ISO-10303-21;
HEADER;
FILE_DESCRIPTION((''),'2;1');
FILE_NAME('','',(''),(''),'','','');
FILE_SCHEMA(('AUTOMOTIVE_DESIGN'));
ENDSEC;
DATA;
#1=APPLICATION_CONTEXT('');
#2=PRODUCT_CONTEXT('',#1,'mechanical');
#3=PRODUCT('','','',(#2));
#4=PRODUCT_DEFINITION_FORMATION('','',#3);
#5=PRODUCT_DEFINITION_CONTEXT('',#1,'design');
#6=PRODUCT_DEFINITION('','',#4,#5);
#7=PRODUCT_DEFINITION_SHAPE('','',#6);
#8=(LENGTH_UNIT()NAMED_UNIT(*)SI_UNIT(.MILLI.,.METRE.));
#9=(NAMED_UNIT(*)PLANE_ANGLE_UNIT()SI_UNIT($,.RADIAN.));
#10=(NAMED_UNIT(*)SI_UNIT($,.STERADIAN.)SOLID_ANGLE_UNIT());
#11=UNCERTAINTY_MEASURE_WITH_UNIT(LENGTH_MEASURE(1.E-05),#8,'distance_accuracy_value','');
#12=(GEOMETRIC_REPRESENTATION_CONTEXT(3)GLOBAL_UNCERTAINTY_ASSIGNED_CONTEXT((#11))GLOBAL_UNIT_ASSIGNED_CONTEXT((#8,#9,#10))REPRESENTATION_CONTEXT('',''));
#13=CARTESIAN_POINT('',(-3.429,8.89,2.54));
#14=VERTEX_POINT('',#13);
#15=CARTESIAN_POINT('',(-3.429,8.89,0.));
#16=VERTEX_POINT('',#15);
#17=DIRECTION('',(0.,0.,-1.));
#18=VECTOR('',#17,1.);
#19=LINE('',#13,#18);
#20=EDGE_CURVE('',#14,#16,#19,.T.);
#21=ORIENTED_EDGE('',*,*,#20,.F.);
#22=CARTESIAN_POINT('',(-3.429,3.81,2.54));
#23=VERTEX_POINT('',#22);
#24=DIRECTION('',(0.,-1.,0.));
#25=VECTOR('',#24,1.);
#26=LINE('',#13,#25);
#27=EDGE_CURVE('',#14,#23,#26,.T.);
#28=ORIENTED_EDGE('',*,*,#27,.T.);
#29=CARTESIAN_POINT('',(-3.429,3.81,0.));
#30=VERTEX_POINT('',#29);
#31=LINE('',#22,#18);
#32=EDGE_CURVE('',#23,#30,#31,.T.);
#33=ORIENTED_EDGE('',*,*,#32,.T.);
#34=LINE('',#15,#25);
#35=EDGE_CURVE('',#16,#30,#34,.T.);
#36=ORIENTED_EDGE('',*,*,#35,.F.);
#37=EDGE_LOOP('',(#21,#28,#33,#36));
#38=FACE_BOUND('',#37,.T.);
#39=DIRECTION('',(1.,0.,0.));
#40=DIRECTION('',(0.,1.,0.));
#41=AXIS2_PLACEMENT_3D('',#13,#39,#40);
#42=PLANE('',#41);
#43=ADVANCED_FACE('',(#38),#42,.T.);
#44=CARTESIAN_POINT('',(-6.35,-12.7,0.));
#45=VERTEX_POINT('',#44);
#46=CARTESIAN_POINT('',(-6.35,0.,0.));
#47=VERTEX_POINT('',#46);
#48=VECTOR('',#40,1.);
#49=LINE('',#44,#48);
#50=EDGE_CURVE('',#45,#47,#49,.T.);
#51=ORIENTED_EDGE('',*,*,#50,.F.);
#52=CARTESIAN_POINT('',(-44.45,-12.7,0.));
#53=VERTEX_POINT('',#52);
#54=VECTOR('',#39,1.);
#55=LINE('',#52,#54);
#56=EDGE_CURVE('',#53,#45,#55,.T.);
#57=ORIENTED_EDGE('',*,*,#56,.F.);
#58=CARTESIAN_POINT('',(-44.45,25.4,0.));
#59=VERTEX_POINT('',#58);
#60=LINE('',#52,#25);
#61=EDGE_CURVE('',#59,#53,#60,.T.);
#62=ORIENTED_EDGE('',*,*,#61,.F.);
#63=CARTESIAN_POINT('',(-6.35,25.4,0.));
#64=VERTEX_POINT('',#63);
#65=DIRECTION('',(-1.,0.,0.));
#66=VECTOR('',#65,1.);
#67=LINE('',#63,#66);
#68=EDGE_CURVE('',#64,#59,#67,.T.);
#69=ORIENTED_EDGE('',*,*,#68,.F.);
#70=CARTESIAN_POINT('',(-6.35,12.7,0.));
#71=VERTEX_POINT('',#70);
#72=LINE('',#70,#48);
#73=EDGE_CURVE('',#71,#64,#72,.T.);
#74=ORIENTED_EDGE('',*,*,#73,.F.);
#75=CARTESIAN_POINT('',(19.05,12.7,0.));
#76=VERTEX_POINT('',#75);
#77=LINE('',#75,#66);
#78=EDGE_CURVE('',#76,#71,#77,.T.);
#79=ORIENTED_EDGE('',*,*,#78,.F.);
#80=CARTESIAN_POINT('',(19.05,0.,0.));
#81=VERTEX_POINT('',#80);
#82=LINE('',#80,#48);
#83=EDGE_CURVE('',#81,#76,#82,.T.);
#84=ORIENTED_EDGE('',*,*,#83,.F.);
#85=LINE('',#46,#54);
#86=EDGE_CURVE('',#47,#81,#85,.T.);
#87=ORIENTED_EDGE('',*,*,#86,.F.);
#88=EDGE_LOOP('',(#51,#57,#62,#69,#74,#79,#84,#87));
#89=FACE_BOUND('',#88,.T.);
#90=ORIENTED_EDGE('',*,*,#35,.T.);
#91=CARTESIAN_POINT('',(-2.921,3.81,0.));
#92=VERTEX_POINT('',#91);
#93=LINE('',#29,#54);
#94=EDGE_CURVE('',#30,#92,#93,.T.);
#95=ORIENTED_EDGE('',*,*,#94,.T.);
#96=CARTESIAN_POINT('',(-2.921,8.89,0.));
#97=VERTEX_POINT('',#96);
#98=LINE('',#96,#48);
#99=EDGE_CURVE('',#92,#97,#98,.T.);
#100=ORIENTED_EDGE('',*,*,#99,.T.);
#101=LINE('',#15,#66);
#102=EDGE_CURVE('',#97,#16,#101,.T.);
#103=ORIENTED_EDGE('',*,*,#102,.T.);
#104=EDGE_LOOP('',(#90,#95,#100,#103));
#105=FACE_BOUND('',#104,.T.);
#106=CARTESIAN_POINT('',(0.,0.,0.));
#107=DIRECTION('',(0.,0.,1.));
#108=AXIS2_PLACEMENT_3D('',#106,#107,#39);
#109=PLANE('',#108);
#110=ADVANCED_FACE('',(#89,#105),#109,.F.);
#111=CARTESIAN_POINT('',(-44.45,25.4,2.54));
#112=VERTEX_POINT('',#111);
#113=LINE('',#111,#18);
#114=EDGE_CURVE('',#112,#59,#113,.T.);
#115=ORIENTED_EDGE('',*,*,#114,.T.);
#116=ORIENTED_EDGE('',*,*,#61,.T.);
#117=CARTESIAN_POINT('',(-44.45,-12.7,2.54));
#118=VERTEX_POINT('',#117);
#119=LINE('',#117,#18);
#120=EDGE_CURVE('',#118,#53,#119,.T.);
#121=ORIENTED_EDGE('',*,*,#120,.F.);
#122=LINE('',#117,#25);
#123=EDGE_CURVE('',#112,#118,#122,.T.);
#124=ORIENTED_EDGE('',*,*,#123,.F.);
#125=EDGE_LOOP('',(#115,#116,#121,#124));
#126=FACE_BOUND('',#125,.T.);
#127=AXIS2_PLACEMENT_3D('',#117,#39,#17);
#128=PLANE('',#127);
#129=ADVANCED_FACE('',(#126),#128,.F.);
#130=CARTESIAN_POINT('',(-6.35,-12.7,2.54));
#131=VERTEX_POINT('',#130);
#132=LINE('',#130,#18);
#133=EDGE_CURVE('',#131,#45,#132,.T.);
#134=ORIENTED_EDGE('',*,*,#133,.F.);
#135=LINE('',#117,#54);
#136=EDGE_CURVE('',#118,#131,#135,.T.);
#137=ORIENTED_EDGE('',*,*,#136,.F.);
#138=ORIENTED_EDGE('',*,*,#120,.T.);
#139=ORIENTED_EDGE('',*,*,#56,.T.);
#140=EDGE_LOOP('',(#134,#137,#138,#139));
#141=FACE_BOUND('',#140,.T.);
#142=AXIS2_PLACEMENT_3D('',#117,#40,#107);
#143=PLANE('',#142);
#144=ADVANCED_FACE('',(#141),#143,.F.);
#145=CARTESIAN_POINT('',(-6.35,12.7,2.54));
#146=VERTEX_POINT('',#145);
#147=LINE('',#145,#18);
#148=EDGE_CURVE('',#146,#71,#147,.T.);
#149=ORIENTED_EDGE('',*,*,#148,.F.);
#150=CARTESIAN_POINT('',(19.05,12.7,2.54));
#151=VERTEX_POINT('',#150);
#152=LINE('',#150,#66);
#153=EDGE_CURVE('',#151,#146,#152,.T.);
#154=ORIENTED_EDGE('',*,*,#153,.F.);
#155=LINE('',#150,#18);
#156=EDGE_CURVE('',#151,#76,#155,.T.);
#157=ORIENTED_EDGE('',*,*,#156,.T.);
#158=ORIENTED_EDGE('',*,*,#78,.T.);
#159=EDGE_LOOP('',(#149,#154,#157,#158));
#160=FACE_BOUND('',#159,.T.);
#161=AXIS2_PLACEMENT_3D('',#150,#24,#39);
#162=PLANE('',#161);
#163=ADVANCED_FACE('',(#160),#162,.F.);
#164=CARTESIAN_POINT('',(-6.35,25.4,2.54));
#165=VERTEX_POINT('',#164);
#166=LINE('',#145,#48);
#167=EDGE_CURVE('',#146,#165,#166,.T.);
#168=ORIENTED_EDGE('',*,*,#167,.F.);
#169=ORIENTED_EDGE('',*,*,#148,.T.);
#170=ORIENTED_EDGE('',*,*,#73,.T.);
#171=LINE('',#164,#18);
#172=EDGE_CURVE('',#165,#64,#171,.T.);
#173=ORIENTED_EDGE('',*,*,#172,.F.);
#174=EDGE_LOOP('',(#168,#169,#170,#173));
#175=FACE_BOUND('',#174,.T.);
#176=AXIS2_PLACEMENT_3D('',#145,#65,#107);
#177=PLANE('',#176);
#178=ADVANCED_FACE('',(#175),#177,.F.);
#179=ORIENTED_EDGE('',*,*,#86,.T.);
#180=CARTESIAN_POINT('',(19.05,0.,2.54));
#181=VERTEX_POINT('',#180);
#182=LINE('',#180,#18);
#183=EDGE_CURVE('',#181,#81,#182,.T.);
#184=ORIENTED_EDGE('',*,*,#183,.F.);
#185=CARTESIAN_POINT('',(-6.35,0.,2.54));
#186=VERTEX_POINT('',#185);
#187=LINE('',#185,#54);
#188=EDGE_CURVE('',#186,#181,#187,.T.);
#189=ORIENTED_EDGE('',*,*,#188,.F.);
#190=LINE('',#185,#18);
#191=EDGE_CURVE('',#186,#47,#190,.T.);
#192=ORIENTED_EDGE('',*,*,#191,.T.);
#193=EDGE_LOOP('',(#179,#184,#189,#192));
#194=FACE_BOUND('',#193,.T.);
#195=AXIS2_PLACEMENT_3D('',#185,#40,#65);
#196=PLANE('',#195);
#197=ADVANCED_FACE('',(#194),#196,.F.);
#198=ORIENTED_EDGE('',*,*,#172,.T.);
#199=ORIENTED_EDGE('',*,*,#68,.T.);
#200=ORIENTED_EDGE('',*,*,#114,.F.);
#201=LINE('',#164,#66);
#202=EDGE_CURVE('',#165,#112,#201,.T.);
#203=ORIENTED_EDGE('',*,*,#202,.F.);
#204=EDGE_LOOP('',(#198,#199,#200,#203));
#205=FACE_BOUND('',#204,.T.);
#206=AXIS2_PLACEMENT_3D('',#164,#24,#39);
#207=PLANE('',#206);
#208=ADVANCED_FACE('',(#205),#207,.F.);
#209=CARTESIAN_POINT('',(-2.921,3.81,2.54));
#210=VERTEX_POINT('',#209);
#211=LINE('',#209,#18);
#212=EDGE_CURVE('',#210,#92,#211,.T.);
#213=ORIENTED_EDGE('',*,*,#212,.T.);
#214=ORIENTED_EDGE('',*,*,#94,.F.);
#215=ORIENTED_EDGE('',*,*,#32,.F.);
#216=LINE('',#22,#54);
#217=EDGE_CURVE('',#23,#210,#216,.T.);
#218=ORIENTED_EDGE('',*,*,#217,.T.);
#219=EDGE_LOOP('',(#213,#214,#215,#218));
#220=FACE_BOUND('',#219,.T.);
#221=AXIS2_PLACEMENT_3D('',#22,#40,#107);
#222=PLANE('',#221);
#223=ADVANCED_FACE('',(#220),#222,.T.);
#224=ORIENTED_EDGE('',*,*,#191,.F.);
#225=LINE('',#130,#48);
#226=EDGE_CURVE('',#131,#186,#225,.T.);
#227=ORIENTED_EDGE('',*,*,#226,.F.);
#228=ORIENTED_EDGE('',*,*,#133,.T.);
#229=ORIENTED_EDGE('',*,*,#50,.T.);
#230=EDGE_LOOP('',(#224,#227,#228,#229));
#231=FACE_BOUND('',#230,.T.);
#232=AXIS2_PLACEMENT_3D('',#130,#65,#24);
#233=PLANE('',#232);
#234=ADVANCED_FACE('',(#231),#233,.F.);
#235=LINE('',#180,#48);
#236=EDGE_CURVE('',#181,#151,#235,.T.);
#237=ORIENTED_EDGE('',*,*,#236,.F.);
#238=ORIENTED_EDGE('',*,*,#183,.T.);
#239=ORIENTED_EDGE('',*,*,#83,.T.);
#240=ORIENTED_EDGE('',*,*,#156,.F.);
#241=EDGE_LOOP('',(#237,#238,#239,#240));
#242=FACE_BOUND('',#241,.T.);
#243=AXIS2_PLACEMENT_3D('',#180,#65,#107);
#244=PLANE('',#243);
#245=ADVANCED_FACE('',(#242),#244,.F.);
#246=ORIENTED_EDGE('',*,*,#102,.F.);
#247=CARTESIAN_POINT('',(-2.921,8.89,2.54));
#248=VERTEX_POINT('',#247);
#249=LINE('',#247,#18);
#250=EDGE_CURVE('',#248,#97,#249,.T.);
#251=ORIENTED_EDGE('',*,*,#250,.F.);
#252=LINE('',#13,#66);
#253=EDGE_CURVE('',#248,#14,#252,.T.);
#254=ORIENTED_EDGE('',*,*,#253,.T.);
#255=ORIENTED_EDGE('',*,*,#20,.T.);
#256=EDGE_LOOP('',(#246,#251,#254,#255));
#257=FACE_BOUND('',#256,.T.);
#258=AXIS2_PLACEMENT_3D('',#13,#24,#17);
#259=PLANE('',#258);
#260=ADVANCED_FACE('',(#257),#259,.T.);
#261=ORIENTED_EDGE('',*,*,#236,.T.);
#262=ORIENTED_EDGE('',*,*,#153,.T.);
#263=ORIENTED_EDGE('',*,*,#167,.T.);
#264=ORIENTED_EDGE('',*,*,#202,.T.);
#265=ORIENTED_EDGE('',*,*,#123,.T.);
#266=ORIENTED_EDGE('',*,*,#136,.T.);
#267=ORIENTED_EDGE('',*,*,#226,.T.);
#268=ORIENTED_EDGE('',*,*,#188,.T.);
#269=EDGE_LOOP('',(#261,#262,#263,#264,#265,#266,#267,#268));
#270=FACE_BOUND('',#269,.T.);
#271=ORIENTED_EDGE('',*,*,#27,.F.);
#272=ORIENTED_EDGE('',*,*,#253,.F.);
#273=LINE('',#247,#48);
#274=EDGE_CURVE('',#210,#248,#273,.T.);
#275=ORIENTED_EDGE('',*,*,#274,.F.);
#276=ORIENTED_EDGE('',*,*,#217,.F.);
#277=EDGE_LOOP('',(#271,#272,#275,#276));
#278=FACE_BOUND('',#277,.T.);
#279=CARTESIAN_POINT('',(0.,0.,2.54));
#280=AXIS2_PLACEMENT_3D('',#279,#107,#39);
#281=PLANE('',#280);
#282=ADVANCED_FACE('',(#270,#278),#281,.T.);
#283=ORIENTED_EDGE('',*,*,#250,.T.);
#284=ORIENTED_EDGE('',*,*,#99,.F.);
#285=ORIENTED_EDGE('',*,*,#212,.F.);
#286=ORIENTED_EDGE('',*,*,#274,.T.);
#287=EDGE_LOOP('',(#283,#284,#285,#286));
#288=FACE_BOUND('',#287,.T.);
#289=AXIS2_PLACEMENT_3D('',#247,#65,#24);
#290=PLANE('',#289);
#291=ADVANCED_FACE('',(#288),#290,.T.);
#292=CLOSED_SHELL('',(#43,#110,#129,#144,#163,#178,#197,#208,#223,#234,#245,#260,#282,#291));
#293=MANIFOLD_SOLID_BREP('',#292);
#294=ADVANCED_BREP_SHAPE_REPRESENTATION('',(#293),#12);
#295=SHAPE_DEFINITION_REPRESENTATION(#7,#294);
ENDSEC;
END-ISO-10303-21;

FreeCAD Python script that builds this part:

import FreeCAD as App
import Part
import Sketcher

V = App.Vector
Q = App.Units.Quantity

doc = App.newDocument("Part")
body = doc.addObject("PartDesign::Body", "Body")

# Sketch on XY plane
sketch1 = body.newObject("Sketcher::SketchObject", "Sketch")
sketch1.AttachmentSupport = (doc.getObject("XY_Plane"), [""])
sketch1.MapMode = "FlatFace"
sketch1.addGeometry(Part.LineSegment(V(-6.3, 12.7, 0), V(-6.3, 25.4, 0)), False)
sketch1.addGeometry(Part.LineSegment(V(-6.3, 25.4, 0), V(-44.5, 25.4, 0)), False)
sketch1.addGeometry(Part.LineSegment(V(-44.5, 25.4, 0), V(-44.5, -12.7, 0)), False)
sketch1.addGeometry(Part.LineSegment(V(-44.5, -12.7, 0), V(-6.3, -12.7, 0)), False)
sketch1.addGeometry(Part.LineSegment(V(-6.3, -12.7, 0), V(-6.3, 0, 0)), False)
sketch1.addGeometry(Part.LineSegment(V(-6.3, 0, 0), V(19.1, 0, 0)), False)
sketch1.addGeometry(Part.LineSegment(V(19.1, 0, 0), V(19.1, 12.7, 0)), False)
sketch1.addGeometry(Part.LineSegment(V(19.1, 12.7, 0), V(-6.3, 12.7, 0)), False)
sketch1.addGeometry(Part.LineSegment(V(-2.9, 3.8, 0), V(-3.4, 3.8, 0)), False)
sketch1.addGeometry(Part.LineSegment(V(-3.4, 3.8, 0), V(-3.4, 8.9, 0)), False)
sketch1.addGeometry(Part.LineSegment(V(-3.4, 8.9, 0), V(-2.9, 8.9, 0)), False)
sketch1.addGeometry(Part.LineSegment(V(-2.9, 8.9, 0), V(-2.9, 3.8, 0)), False)
sketch1.addConstraint(Sketcher.Constraint("Coincident", 0, 2, 1, 1))
sketch1.addConstraint(Sketcher.Constraint("Coincident", 1, 2, 2, 1))
sketch1.addConstraint(Sketcher.Constraint("Coincident", 2, 2, 3, 1))
sketch1.addConstraint(Sketcher.Constraint("Coincident", 3, 2, 4, 1))
sketch1.addConstraint(Sketcher.Constraint("Coincident", 4, 2, 5, 1))
sketch1.addConstraint(Sketcher.Constraint("Coincident", 5, 2, 6, 1))
sketch1.addConstraint(Sketcher.Constraint("Coincident", 6, 2, 7, 1))
sketch1.addConstraint(Sketcher.Constraint("Coincident", 7, 2, 0, 1))
sketch1.addConstraint(Sketcher.Constraint("Coincident", 8, 2, 9, 1))
sketch1.addConstraint(Sketcher.Constraint("Coincident", 9, 2, 10, 1))
sketch1.addConstraint(Sketcher.Constraint("Coincident", 10, 2, 11, 1))
sketch1.addConstraint(Sketcher.Constraint("Coincident", 11, 2, 8, 1))
sketch1.addConstraint(Sketcher.Constraint("Vertical", 0))
sketch1.addConstraint(Sketcher.Constraint("Horizontal", 1))
sketch1.addConstraint(Sketcher.Constraint("Vertical", 2))
sketch1.addConstraint(Sketcher.Constraint("Horizontal", 3))
sketch1.addConstraint(Sketcher.Constraint("Vertical", 4))
sketch1.addConstraint(Sketcher.Constraint("Horizontal", 5))
sketch1.addConstraint(Sketcher.Constraint("Vertical", 6))
sketch1.addConstraint(Sketcher.Constraint("Horizontal", 7))
sketch1.addConstraint(Sketcher.Constraint("Horizontal", 8))
sketch1.addConstraint(Sketcher.Constraint("Vertical", 9))
sketch1.addConstraint(Sketcher.Constraint("Horizontal", 10))
sketch1.addConstraint(Sketcher.Constraint("Vertical", 11))
sketch1.addConstraint(Sketcher.Constraint("Symmetric", 3, 2, 7, 2, -1))
sketch1.addConstraint(Sketcher.Constraint("PointOnObject", 4, 2, -1))
sketch1.addConstraint(Sketcher.Constraint("Equal", 3, 2))
sketch1.addConstraint(Sketcher.Constraint("Equal", 0, 4))
sketch1.addConstraint(Sketcher.Constraint("DistanceX", 5, 1, 5, 2, Q("1 in")))
sketch1.addConstraint(Sketcher.Constraint("DistanceX", 1, 2, 1, 1, Q("1.5 in")))
sketch1.addConstraint(Sketcher.Constraint("DistanceY", 9, 1, 9, 2, Q("0.2 in")))
sketch1.addConstraint(Sketcher.Constraint("DistanceX", 8, 2, 8, 1, Q("0.02 in")))
sketch1.addConstraint(Sketcher.Constraint("DistanceX", 0, 2, -1, 1, Q("0.25 in")))
sketch1.addConstraint(Sketcher.Constraint("DistanceY", -1, 1, 8, 2, Q("0.15 in")))
sketch1.addConstraint(Sketcher.Constraint("DistanceX", 8, 2, -1, 1, Q("0.135 in")))
pad1 = body.newObject("PartDesign::Pad", "Pad")
pad1.Profile = sketch1
pad1.Length = Q("0.1 in")

doc.recompute()
